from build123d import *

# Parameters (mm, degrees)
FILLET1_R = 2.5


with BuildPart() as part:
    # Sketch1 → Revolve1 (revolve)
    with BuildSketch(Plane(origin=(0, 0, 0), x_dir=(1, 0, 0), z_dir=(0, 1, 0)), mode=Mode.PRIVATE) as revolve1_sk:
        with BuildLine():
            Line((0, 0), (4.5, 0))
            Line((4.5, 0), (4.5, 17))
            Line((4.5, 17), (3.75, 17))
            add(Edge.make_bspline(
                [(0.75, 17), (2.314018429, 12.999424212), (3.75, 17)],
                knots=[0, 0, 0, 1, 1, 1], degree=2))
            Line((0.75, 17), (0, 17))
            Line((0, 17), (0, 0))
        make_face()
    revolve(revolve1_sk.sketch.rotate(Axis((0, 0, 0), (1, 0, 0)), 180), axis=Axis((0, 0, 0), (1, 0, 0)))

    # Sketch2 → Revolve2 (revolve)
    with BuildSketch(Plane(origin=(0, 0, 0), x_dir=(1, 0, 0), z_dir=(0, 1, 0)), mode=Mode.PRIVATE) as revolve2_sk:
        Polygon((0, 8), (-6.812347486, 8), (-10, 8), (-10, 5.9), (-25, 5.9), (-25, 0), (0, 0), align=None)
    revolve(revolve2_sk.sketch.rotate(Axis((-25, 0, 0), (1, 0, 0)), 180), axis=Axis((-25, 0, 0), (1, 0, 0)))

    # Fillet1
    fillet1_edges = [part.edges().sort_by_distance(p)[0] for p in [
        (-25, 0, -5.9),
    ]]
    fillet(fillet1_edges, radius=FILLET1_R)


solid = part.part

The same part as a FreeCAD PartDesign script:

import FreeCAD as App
import Part
import Sketcher

V = App.Vector
Q = App.Units.Quantity


def edges_at(feature, points):
    """Names of the edges that pass closest to the given points."""
    edges = feature.Shape.Edges
    near = lambda p: min(range(len(edges)), key=lambda i: edges[i].distToShape(Part.Vertex(*p))[0])
    return sorted({f"Edge{near(p) + 1}" for p in points})


def add_polygon(sketch, points):
    """Adds a closed chain of lines whose ends are joined by coincident constraints."""
    first, n = sketch.GeometryCount, len(points)
    for a, b in zip(points, points[1:] + points[:1]):
        sketch.addGeometry(Part.LineSegment(App.Vector(*a, 0), App.Vector(*b, 0)), False)
    for i in range(n):
        sketch.addConstraint(Sketcher.Constraint("Coincident", first + i, 2, first + (i + 1) % n, 1))

doc = App.newDocument("Part")
params = doc.addObject("Spreadsheet::Sheet", "Params")
for row, (alias, value) in enumerate([
    ("sketch1_width", "4.5 mm"),
    ("revolution_angle", "360 deg"),
    ("sketch2_width", "10 mm"),
    ("sketch2_width2", "15 mm"),
    ("sketch2_height", "8 mm"),
    ("sketch2_height2", "2.1 mm"),
    ("revolution2_angle", "360 deg"),
    ("fillet_radius", "2.5 mm"),
], start=1):
    params.set(f"A{row}", alias)
    params.set(f"B{row}", "=" + value)
    params.setAlias(f"B{row}", alias)

body = doc.addObject("PartDesign::Body", "Body")

# Sketch on XZ plane
sketch1 = body.newObject("Sketcher::SketchObject", "Sketch")
sketch1.AttachmentSupport = (doc.getObject("XZ_Plane"), [""])
sketch1.MapMode = "FlatFace"
sketch1.addGeometry(Part.LineSegment(V(0, 0, 0), V(4.5, 0, 0)), False)
sketch1.addGeometry(Part.LineSegment(V(4.5, 0, 0), V(4.5, -17, 0)), False)
sketch1.addGeometry(Part.LineSegment(V(4.5, -17, 0), V(3.75, -17, 0)), False)
sketch1.addGeometry(Part.BSplineCurve([V(0.75, -17, 0), V(2.314018, -12.999424, 0), V(3.75, -17, 0)], [3, 3], [0, 1], False, 2, [1, 1, 1], False), False)
sketch1.addGeometry(Part.LineSegment(V(0.75, -17, 0), V(0, -17, 0)), False)
sketch1.addGeometry(Part.LineSegment(V(0, -17, 0), V(0, 0, 0)), False)
sketch1.addConstraint(Sketcher.Constraint("Block", 3))
sketch1.addConstraint(Sketcher.Constraint("Coincident", 0, 2, 1, 1))
sketch1.addConstraint(Sketcher.Constraint("Coincident", 1, 2, 2, 1))
sketch1.addConstraint(Sketcher.Constraint("Coincident", 2, 2, 3, 2))
sketch1.addConstraint(Sketcher.Constraint("Coincident", 3, 1, 4, 1))
sketch1.addConstraint(Sketcher.Constraint("Coincident", 4, 2, 5, 1))
sketch1.addConstraint(Sketcher.Constraint("Coincident", 5, 2, 0, 1))
sketch1.addConstraint(Sketcher.Constraint("Horizontal", 0))
sketch1.addConstraint(Sketcher.Constraint("Vertical", 1))
sketch1.addConstraint(Sketcher.Constraint("Horizontal", 2))
sketch1.addConstraint(Sketcher.Constraint("Horizontal", 4))
sketch1.addConstraint(Sketcher.Constraint("Vertical", 5))
sketch1.addConstraint(Sketcher.Constraint("Coincident", 5, 2, -1, 1))
sketch1.addConstraint(Sketcher.Constraint("DistanceX", 0, 1, 0, 2, Q("4.5 mm")))
sketch1.setExpression("Constraints[13]", "Params.sketch1_width")
revolution = body.newObject("PartDesign::Revolution", "Revolution")
revolution.Profile = sketch1
revolution.ReferenceAxis = (sketch1, ["H_Axis"])
revolution.setExpression("Angle", "Params.revolution_angle")

# Sketch on XZ plane
sketch2 = body.newObject("Sketcher::SketchObject", "Sketch001")
sketch2.AttachmentSupport = (doc.getObject("XZ_Plane"), [""])
sketch2.MapMode = "FlatFace"
add_polygon(sketch2, [(0, -8), (-10, -8), (-10, -5.9), (-25, -5.9), (-25, 0), (0, 0)])  # lines 0-5
sketch2.addConstraint(Sketcher.Constraint("Horizontal", 0))
sketch2.addConstraint(Sketcher.Constraint("Vertical", 1))
sketch2.addConstraint(Sketcher.Constraint("Horizontal", 2))
sketch2.addConstraint(Sketcher.Constraint("Vertical", 3))
sketch2.addConstraint(Sketcher.Constraint("Horizontal", 4))
sketch2.addConstraint(Sketcher.Constraint("Vertical", 5))
sketch2.addConstraint(Sketcher.Constraint("Coincident", 4, 2, -1, 1))
sketch2.addConstraint(Sketcher.Constraint("DistanceX", 0, 2, 0, 1, Q("10 mm")))
sketch2.addConstraint(Sketcher.Constraint("DistanceX", 2, 2, 2, 1, Q("15 mm")))
sketch2.addConstraint(Sketcher.Constraint("DistanceY", 5, 2, 5, 1, Q("8 mm")))
sketch2.addConstraint(Sketcher.Constraint("DistanceY", 1, 1, 1, 2, Q("2.1 mm")))
sketch2.setExpression("Constraints[13]", "Params.sketch2_width")
sketch2.setExpression("Constraints[14]", "Params.sketch2_width2")
sketch2.setExpression("Constraints[15]", "Params.sketch2_height")
sketch2.setExpression("Constraints[16]", "Params.sketch2_height2")
revolution2 = body.newObject("PartDesign::Revolution", "Revolution001")
revolution2.Profile = sketch2
revolution2.ReferenceAxis = (sketch2, ["H_Axis"])
revolution2.setExpression("Angle", "Params.revolution2_angle")
doc.recompute()

fillet = body.newObject("PartDesign::Fillet", "Fillet")
fillet.Base = (revolution2, edges_at(revolution2, [(-25, 0, -5.9)]))
fillet.setExpression("Radius", "Params.fillet_radius")

doc.recompute()
